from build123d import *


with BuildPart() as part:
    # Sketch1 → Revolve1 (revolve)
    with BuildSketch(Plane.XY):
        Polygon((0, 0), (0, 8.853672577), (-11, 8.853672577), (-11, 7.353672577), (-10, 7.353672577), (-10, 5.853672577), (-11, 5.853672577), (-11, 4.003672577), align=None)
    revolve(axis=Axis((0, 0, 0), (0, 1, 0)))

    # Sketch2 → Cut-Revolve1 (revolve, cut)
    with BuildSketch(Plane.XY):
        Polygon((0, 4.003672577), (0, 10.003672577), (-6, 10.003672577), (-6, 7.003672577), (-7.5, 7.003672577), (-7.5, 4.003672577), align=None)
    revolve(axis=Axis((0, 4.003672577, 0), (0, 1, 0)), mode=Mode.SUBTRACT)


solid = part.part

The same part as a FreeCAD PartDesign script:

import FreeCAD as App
import Part
import Sketcher
Q = App.Units.Quantity


def add_polygon(sketch, points):
    """Adds a closed chain of lines whose ends are joined by coincident constraints."""
    first, n = sketch.GeometryCount, len(points)
    for a, b in zip(points, points[1:] + points[:1]):
        sketch.addGeometry(Part.LineSegment(App.Vector(*a, 0), App.Vector(*b, 0)), False)
    for i in range(n):
        sketch.addConstraint(Sketcher.Constraint("Coincident", first + i, 2, first + (i + 1) % n, 1))

doc = App.newDocument("Part")
params = doc.addObject("Spreadsheet::Sheet", "Params")
for row, (alias, value) in enumerate([
    ("sketch1_width", "11 mm"),
    ("sketch1_width2", "1 mm"),
    ("sketch1_height", "1.5 mm"),
    ("sketch1_height2", "1.85 mm"),
    ("revolution_angle", "360 deg"),
    ("sketch2_width", "6 mm"),
    ("sketch2_width2", "1.5 mm"),
    ("groove_angle", "360 deg"),
], start=1):
    params.set(f"A{row}", alias)
    params.set(f"B{row}", "=" + value)
    params.setAlias(f"B{row}", alias)

body = doc.addObject("PartDesign::Body", "Body")

sketch1 = doc.addObject("Sketcher::SketchObject", "Sketch")
body.addObject(sketch1)
sketch1.AttachmentSupport = (doc.XY_Plane, [""])
sketch1.MapMode = "FlatFace"
add_polygon(sketch1, [(0, 0), (0, 8.853673), (-11, 8.853673), (-11, 7.353673), (-10, 7.353673), (-10, 5.853673), (-11, 5.853673), (-11, 4.003673)])
sketch1.addConstraint([
    Sketcher.Constraint("Vertical", 0),
    Sketcher.Constraint("Horizontal", 1),
    Sketcher.Constraint("Vertical", 2),
    Sketcher.Constraint("Horizontal", 3),
    Sketcher.Constraint("Vertical", 4),
    Sketcher.Constraint("Horizontal", 5),
    Sketcher.Constraint("Vertical", 6),
    Sketcher.Constraint("Coincident", 7, 2, -1, 1),
    Sketcher.Constraint("Vertical", 2, 2, 5, 2),
    Sketcher.Constraint("Equal", 2, 4),
    Sketcher.Constraint("DistanceX", 1, 2, 1, 1, 11.0),
    Sketcher.Constraint("DistanceX", 3, 1, 3, 2, 1.0),
    Sketcher.Constraint("Angle", 7, Q("-20 deg")),
    Sketcher.Constraint("DistanceY", 2, 2, 2, 1, 1.5),
    Sketcher.Constraint("DistanceY", 6, 2, 6, 1, 1.85),
])
sketch1.setExpression("Constraints[18]", "Params.sketch1_width")
sketch1.setExpression("Constraints[19]", "Params.sketch1_width2")
sketch1.setExpression("Constraints[21]", "Params.sketch1_height")
sketch1.setExpression("Constraints[22]", "Params.sketch1_height2")
revolution = doc.addObject("PartDesign::Revolution", "Revolution")
body.addObject(revolution)
revolution.Profile = sketch1
revolution.ReferenceAxis = (sketch1, ["V_Axis"])
revolution.setExpression("Angle", "Params.revolution_angle")

sketch2 = doc.addObject("Sketcher::SketchObject", "Sketch001")
body.addObject(sketch2)
sketch2.AttachmentSupport = (doc.XY_Plane, [""])
sketch2.MapMode = "FlatFace"
add_polygon(sketch2, [(0, 4.003673), (0, 10.003673), (-6, 10.003673), (-6, 7.003673), (-7.5, 7.003673), (-7.5, 4.003673)])
sketch2.addConstraint([
    Sketcher.Constraint("Vertical", 0),
    Sketcher.Constraint("Horizontal", 1),
    Sketcher.Constraint("Vertical", 2),
    Sketcher.Constraint("Horizontal", 3),
    Sketcher.Constraint("Vertical", 4),
    Sketcher.Constraint("Horizontal", 5),
    Sketcher.Constraint("PointOnObject", 0, 2, -2),
    Sketcher.Constraint("Equal", 1, 0),
    Sketcher.Constraint("Equal", 2, 4),
    Sketcher.Constraint("DistanceX", 1, 2, 1, 1, 6.0),
    Sketcher.Constraint("DistanceX", 3, 2, 3, 1, 1.5),
    Sketcher.Constraint("DistanceY", -1, 1, 0, 2, 10.003673),
])
sketch2.setExpression("Constraints[15]", "Params.sketch2_width")
sketch2.setExpression("Constraints[16]", "Params.sketch2_width2")
groove = doc.addObject("PartDesign::Groove", "Groove")
body.addObject(groove)
groove.Profile = sketch2
groove.ReferenceAxis = (sketch2, ["V_Axis"])
groove.setExpression("Angle", "Params.groove_angle")

doc.recompute()
